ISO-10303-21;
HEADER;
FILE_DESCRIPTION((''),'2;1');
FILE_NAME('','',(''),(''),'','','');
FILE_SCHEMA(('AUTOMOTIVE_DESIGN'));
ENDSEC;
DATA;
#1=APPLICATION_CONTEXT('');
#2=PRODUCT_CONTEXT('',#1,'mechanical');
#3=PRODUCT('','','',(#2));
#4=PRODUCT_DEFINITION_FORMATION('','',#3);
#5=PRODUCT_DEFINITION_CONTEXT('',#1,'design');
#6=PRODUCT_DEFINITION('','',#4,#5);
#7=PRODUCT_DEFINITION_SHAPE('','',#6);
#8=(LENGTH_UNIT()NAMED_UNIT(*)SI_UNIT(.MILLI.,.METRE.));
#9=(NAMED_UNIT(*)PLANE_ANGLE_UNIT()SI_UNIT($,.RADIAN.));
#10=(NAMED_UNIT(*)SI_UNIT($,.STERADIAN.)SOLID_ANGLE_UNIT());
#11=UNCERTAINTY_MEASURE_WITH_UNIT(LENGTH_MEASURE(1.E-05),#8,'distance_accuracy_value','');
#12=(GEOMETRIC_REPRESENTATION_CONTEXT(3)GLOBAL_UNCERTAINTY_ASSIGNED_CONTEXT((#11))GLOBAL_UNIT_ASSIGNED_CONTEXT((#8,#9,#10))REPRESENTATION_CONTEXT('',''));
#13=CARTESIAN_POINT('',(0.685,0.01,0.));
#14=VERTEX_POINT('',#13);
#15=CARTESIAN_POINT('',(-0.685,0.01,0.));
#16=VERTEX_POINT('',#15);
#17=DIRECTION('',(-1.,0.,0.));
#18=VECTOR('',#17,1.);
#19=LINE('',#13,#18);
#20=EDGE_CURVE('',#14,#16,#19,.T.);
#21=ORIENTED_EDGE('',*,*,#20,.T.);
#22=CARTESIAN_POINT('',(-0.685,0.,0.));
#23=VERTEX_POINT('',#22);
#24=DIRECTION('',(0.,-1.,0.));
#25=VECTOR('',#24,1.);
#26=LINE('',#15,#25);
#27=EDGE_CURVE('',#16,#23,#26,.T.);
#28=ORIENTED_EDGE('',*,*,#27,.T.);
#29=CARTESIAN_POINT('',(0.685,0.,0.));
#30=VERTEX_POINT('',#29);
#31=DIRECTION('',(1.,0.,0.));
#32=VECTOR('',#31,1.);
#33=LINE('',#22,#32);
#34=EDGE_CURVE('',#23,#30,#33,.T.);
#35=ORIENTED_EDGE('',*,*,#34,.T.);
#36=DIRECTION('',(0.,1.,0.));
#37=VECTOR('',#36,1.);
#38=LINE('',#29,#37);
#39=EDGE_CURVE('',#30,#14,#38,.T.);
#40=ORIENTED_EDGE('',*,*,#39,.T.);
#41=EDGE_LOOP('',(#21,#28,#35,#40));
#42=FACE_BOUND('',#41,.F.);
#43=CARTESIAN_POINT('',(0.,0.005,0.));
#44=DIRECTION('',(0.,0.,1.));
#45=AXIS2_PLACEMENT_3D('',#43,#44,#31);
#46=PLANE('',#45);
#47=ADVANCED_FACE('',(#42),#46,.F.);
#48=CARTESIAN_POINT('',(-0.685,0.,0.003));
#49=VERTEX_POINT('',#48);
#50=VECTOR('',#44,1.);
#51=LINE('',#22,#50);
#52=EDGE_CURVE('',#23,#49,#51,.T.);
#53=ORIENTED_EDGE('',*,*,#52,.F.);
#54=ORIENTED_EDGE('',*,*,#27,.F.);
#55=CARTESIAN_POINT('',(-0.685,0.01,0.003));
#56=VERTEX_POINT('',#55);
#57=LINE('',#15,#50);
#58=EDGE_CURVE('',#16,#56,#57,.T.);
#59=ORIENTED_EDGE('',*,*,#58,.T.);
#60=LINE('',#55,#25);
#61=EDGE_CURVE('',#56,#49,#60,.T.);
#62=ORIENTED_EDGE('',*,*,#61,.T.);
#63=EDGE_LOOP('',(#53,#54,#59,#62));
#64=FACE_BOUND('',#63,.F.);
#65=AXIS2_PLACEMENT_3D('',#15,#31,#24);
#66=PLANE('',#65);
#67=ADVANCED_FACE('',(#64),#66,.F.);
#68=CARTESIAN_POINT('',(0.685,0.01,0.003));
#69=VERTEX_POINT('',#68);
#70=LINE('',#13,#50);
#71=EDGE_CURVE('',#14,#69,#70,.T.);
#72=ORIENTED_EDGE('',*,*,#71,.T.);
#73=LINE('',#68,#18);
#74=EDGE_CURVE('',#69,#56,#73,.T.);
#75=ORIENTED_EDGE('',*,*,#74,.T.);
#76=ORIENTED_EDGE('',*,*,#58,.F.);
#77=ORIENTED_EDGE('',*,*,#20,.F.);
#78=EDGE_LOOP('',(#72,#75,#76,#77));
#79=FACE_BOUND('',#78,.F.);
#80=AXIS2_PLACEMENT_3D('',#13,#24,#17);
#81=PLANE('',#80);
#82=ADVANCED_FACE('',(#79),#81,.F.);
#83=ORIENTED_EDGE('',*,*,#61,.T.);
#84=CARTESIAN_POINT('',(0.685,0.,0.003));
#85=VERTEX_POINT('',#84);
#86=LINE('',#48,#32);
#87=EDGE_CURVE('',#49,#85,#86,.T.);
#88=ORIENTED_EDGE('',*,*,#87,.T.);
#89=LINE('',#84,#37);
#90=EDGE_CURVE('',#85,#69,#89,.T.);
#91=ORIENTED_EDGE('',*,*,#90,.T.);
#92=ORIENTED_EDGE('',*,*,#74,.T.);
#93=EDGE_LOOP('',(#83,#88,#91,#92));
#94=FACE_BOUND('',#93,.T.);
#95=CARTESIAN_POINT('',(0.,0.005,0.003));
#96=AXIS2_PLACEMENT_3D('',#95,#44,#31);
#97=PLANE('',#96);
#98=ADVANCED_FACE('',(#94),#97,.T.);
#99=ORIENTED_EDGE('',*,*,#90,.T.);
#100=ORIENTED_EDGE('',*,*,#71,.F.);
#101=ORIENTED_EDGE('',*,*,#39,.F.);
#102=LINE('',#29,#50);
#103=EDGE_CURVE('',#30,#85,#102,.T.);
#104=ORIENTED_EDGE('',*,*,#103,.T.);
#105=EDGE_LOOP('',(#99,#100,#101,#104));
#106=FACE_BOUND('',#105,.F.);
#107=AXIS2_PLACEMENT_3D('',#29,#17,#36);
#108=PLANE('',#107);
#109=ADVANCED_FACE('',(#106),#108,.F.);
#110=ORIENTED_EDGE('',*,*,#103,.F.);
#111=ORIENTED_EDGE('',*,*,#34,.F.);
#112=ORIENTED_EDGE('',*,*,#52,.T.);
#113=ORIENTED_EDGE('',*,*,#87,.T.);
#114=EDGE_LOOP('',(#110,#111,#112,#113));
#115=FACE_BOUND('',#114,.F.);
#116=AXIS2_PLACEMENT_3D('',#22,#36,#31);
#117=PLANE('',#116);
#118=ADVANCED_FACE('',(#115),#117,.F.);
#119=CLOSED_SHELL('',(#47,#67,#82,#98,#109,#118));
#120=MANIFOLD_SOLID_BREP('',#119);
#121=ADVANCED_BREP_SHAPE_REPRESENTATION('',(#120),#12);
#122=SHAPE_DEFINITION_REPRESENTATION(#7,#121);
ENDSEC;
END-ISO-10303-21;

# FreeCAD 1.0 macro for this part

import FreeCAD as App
import Part
import Sketcher
from FreeCAD import Vector

doc = App.newDocument("Part")
body = doc.addObject("PartDesign::Body", "Body")

sketch1 = body.newObject("Sketcher::SketchObject", "Sketch")
sketch1.AttachmentSupport = (doc.getObject("XY_Plane"), [""])
sketch1.MapMode = "FlatFace"
sketch1.addGeometry([
    Part.LineSegment(Vector(-0.685, 0.01, 0), Vector(-0.685, 0, 0)),
    Part.LineSegment(Vector(-0.685, 0, 0), Vector(0.685, 0, 0)),
    Part.LineSegment(Vector(0.685, 0, 0), Vector(0.685, 0.01, 0)),
    Part.LineSegment(Vector(0.685, 0.01, 0), Vector(-0.685, 0.01, 0)),
], False)
sketch1.addConstraint([
    Sketcher.Constraint("Coincident", 0, 2, 1, 1),
    Sketcher.Constraint("Coincident", 1, 2, 2, 1),
    Sketcher.Constraint("Coincident", 2, 2, 3, 1),
    Sketcher.Constraint("Coincident", 3, 2, 0, 1),
    Sketcher.Constraint("Vertical", 0),
    Sketcher.Constraint("Horizontal", 1),
    Sketcher.Constraint("Vertical", 2),
    Sketcher.Constraint("Horizontal", 3),
    Sketcher.Constraint("Symmetric", 0, 2, 1, 2, -1, 1),
    Sketcher.Constraint("DistanceX", 0, 2, -1, 1, 0.685),
    Sketcher.Constraint("DistanceY", 0, 2, 0, 1, 0.01),
])
pad1 = body.newObject("PartDesign::Pad", "Pad")
pad1.Profile = sketch1
pad1.Length = 0.003

doc.recompute()
